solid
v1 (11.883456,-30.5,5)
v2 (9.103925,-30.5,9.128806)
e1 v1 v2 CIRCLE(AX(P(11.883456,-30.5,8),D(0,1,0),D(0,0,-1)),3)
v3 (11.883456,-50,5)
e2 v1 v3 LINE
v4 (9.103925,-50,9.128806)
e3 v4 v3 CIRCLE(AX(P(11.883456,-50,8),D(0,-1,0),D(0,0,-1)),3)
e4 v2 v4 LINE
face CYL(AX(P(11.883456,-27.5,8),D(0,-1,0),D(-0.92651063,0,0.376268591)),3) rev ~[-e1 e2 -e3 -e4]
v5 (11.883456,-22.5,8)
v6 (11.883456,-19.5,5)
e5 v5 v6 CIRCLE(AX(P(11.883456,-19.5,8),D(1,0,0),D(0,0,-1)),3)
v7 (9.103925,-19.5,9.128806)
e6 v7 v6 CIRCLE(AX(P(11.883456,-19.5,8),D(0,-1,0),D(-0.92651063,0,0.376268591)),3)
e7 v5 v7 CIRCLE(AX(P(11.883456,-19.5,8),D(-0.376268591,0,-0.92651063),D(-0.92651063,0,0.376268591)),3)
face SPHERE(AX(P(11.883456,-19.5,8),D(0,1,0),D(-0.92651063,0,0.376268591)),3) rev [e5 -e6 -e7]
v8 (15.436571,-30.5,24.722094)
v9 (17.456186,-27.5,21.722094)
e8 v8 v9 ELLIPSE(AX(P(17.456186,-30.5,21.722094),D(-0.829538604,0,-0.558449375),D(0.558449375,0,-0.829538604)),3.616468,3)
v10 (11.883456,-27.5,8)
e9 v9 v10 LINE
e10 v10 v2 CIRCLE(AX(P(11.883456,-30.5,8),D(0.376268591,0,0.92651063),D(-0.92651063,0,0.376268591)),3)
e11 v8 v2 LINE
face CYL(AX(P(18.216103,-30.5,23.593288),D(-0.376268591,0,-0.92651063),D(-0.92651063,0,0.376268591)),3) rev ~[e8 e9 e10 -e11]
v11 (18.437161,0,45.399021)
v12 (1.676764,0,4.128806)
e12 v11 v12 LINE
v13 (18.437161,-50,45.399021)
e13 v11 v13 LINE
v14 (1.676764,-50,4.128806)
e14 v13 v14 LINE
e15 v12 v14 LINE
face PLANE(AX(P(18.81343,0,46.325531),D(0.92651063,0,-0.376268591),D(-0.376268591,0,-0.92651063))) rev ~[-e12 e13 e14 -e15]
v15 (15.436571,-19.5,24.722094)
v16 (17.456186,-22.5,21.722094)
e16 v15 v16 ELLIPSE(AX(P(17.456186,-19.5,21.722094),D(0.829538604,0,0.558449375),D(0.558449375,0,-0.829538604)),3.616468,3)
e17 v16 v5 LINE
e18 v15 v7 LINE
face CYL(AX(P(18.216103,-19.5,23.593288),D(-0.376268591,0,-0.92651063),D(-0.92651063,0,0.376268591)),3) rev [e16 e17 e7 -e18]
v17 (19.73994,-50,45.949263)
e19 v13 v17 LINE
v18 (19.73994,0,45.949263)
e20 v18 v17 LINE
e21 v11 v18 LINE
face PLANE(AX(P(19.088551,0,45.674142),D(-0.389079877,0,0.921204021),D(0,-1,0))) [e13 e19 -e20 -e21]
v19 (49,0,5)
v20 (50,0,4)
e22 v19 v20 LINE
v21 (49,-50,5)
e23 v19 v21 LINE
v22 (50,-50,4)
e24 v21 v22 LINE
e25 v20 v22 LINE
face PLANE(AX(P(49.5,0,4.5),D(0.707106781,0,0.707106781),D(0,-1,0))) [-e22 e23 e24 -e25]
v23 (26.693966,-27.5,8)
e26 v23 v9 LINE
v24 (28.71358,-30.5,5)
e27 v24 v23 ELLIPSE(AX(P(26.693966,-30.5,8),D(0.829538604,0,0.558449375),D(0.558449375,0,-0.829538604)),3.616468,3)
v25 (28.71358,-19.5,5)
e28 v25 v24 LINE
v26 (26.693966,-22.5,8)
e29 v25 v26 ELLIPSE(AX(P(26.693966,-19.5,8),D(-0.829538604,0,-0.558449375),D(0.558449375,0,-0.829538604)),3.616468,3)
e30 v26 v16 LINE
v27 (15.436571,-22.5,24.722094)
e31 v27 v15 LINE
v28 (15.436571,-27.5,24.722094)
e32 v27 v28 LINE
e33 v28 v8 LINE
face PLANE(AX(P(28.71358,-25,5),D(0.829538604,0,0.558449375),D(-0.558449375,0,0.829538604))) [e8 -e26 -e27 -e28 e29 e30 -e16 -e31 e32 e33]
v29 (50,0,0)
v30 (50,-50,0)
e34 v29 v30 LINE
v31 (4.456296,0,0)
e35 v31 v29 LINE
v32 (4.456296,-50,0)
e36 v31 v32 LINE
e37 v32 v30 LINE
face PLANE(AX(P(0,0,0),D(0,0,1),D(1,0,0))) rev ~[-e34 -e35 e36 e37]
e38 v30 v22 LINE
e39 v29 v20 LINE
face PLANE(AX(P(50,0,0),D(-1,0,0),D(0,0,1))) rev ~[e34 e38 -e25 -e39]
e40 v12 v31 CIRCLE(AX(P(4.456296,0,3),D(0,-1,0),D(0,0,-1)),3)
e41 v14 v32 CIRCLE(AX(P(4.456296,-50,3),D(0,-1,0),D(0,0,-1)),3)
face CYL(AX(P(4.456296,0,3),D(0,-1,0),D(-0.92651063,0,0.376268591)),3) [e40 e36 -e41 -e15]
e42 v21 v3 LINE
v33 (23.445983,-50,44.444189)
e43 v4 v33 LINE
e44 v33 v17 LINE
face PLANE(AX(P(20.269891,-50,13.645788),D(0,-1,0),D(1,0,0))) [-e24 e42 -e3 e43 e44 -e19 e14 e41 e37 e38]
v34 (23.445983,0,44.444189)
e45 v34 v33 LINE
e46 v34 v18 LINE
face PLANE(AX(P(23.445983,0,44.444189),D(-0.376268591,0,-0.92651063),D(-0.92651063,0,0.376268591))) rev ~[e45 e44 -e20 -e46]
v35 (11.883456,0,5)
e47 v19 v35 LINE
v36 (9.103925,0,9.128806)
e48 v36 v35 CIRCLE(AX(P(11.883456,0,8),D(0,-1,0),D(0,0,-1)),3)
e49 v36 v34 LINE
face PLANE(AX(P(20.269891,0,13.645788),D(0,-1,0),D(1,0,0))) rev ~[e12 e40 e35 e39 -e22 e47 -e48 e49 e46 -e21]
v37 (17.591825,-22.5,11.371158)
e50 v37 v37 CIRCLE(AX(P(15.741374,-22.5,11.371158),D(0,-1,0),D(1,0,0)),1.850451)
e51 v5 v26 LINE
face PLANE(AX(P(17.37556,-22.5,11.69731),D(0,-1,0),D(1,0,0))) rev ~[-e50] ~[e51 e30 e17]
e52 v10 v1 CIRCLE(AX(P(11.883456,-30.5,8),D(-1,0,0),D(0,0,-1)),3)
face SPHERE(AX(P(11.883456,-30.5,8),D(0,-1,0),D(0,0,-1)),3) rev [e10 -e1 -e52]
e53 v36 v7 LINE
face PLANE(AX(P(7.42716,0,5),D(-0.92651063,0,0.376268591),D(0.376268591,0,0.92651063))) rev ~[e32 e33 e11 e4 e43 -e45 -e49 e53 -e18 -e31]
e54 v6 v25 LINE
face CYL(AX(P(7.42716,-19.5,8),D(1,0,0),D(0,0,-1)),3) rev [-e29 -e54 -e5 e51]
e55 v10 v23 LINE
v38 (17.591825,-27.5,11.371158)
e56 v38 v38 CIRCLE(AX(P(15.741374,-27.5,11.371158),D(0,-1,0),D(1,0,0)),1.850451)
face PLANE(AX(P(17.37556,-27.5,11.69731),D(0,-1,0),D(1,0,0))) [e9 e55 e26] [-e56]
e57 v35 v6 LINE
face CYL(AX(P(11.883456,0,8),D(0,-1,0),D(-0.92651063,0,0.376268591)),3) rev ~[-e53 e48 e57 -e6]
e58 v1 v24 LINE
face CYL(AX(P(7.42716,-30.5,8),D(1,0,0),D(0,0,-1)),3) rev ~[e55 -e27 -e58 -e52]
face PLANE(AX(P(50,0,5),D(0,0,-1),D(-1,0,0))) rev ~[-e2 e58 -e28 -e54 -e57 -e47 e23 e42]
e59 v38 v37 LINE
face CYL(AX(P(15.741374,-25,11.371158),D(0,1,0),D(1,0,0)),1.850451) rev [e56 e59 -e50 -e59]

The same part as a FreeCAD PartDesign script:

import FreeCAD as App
import Part
import Sketcher

V = App.Vector


def edges_at(feature, points):
    """Names of the edges that pass closest to the given points."""
    edges = feature.Shape.Edges
    near = lambda p: min(range(len(edges)), key=lambda i: edges[i].distToShape(Part.Vertex(*p))[0])
    return sorted({f"Edge{near(p) + 1}" for p in points})


def add_polygon(sketch, points):
    """Adds a closed chain of lines whose ends are joined by coincident constraints."""
    first, n = sketch.GeometryCount, len(points)
    for a, b in zip(points, points[1:] + points[:1]):
        sketch.addGeometry(Part.LineSegment(App.Vector(*a, 0), App.Vector(*b, 0)), False)
    for i in range(n):
        sketch.addConstraint(Sketcher.Constraint("Coincident", first + i, 2, first + (i + 1) % n, 1))

doc = App.newDocument("Part")
body = doc.addObject("PartDesign::Body", "Body")

# Sketch on XZ plane
sketch1 = doc.addObject("Sketcher::SketchObject", "Sketch")
body.addObject(sketch1)
sketch1.AttachmentSupport = (doc.XZ_Plane, [""])
sketch1.MapMode = "FlatFace"
add_polygon(sketch1, [(18.8, 46.3), (0, 0), (50, 0), (50, 5), (7.4, 5), (23.4, 44.4)])  # lines 0-5
sketch1.addConstraint([
    Sketcher.Constraint("Horizontal", 1),
    Sketcher.Constraint("Vertical", 2),
    Sketcher.Constraint("Horizontal", 3),
    Sketcher.Constraint("Coincident", 0, 2, -1, 1),
    Sketcher.Constraint("Parallel", 0, 4),
    Sketcher.Constraint("Perpendicular", 4, 5),
    Sketcher.Constraint("DistanceX", 1, 1, 1, 2, 50.0),
    Sketcher.Constraint("DistanceY", 2, 1, 2, 2, 5.0),
    Sketcher.Constraint("Distance", 0, 50.0),
    Sketcher.Constraint("Distance", 5, 5.0),
    Sketcher.Constraint("DistanceX", 3, 2, 3, 1, 42.57284),
])
pad1 = doc.addObject("PartDesign::Pad", "Pad")
body.addObject(pad1)
pad1.Profile = sketch1
pad1.Length = 50

# Sketch on XZ plane
sketch2 = doc.addObject("Sketcher::SketchObject", "Sketch001")
body.addObject(sketch2)
sketch2.AttachmentSupport = (doc.XZ_Plane, [""])
sketch2.MapMode = "FlatFace"
sketch2.AttachmentOffset = App.Placement(V(0, 0, 25), App.Rotation())
add_polygon(sketch2, [(28.7, 5), (15.4, 24.7), (7.4, 5)])  # lines 0-2
sketch2.addGeometry(Part.Circle(V(15.7, 11.4, 0), V(0, 0, 1), 1.9), False)  # 3
sketch2.addConstraint([
    Sketcher.Constraint("Horizontal", 2),
    Sketcher.Constraint("DistanceY", -1, 1, 1, 2, 5.0),
    Sketcher.Constraint("Diameter", 3, 3.700902),
    Sketcher.Constraint("DistanceX", 2, 1, 2, 2, 21.28642),
    Sketcher.Constraint("Distance", 1, 21.28642),
    Sketcher.Constraint("DistanceY", -1, 1, 3, 3, 11.371158),
    Sketcher.Constraint("DistanceX", -1, 1, 0, 2, 15.436571),
    Sketcher.Constraint("DistanceX", -1, 1, 1, 2, 7.42716),
    Sketcher.Constraint("DistanceX", -1, 1, 3, 3, 15.741374),
])
pad2 = doc.addObject("PartDesign::Pad", "Pad001")
body.addObject(pad2)
pad2.Profile = sketch2
pad2.Length = 5
pad2.Midplane = True
doc.recompute()

fillet = doc.addObject("PartDesign::Fillet", "Fillet")
body.addObject(fillet)
fillet.Base = (pad2, edges_at(pad2, [
    (0, -25, 0),
    (18.07, -27.5, 5),
    (11.432, -27.5, 14.861),
    (11.432, -22.5, 14.861),
    (18.07, -22.5, 5),
    (7.427, -38.75, 5),
    (7.427, -11.25, 5),
]))
fillet.Radius = 3
doc.recompute()

chamfer = doc.addObject("PartDesign::Chamfer", "Chamfer")
body.addObject(chamfer)
chamfer.Base = (fillet, edges_at(fillet, [(18.813, -25, 46.326), (50, -25, 5)]))
chamfer.Size = 1

doc.recompute()
